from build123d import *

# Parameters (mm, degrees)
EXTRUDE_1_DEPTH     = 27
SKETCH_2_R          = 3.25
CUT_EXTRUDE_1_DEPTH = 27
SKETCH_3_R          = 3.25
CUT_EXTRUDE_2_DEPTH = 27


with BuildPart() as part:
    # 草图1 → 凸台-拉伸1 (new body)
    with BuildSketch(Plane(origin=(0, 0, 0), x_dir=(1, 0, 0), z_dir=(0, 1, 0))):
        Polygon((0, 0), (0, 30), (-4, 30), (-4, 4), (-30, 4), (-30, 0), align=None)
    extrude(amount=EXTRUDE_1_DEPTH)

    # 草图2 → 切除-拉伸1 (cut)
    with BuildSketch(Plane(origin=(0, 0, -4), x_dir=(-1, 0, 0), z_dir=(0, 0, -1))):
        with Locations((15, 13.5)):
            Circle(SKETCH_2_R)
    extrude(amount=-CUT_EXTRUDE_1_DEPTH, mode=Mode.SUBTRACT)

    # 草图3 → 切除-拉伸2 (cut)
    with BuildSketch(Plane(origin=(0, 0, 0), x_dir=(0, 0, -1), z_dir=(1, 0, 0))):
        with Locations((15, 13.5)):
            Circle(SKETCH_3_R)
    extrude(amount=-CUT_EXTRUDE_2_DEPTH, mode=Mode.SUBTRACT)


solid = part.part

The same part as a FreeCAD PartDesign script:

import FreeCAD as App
import Part
import Sketcher
from FreeCAD import Vector

doc = App.newDocument("Part")
body = doc.addObject("PartDesign::Body", "Body")

# Sketch on XZ plane
sketch1 = body.newObject("Sketcher::SketchObject", "Sketch")
sketch1.AttachmentSupport = (doc.getObject("XZ_Plane"), [""])
sketch1.MapMode = "FlatFace"
sketch1.addGeometry([
    Part.LineSegment(Vector(0, 0, 0), Vector(0, -30, 0)),  # 0
    Part.LineSegment(Vector(0, -30, 0), Vector(-4, -30, 0)),  # 1
    Part.LineSegment(Vector(-4, -30, 0), Vector(-4, -4, 0)),  # 2
    Part.LineSegment(Vector(-4, -4, 0), Vector(-30, -4, 0)),  # 3
    Part.LineSegment(Vector(-30, -4, 0), Vector(-30, 0, 0)),  # 4
    Part.LineSegment(Vector(-30, 0, 0), Vector(0, 0, 0)),  # 5
], False)
sketch1.addConstraint([
    Sketcher.Constraint("Coincident", 0, 2, 1, 1),
    Sketcher.Constraint("Coincident", 1, 2, 2, 1),
    Sketcher.Constraint("Coincident", 2, 2, 3, 1),
    Sketcher.Constraint("Coincident", 3, 2, 4, 1),
    Sketcher.Constraint("Coincident", 4, 2, 5, 1),
    Sketcher.Constraint("Coincident", 5, 2, 0, 1),
    Sketcher.Constraint("Vertical", 0),
    Sketcher.Constraint("Horizontal", 1),
    Sketcher.Constraint("Vertical", 2),
    Sketcher.Constraint("Horizontal", 3),
    Sketcher.Constraint("Vertical", 4),
    Sketcher.Constraint("Horizontal", 5),
    Sketcher.Constraint("Coincident", 5, 2, -1, 1),
    Sketcher.Constraint("Equal", 5, 0),
    Sketcher.Constraint("Equal", 3, 2),
    Sketcher.Constraint("DistanceX", 1, 2, 1, 1, 4.0),
    Sketcher.Constraint("DistanceX", 3, 2, 3, 1, 26.0),
])
pad1 = body.newObject("PartDesign::Pad", "Pad")
pad1.Profile = sketch1
pad1.Length = 27
pad1.Reversed = True

# Sketch on XY plane
sketch2 = body.newObject("Sketcher::SketchObject", "Sketch001")
sketch2.AttachmentSupport = (doc.getObject("XY_Plane"), [""])
sketch2.MapMode = "FlatFace"
sketch2.AttachmentOffset = App.Placement(Vector(0, 0, -4), App.Rotation())
sketch2.addGeometry(Part.Circle(Vector(-15, 13.5, 0), Vector(0, 0, 1), 3.2), False)
sketch2.addConstraint([
    Sketcher.Constraint("Diameter", 0, 6.5),
    Sketcher.Constraint("DistanceX", 0, 3, -1, 1, 15.0),
    Sketcher.Constraint("DistanceY", -1, 1, 0, 3, 13.5),
])
pocket1 = body.newObject("PartDesign::Pocket", "Pocket")
pocket1.Profile = sketch2
pocket1.Length = 27
pocket1.Reversed = True

# Sketch on YZ plane
sketch3 = body.newObject("Sketcher::SketchObject", "Sketch002")
sketch3.AttachmentSupport = (doc.getObject("YZ_Plane"), [""])
sketch3.MapMode = "FlatFace"
sketch3.addGeometry(Part.Circle(Vector(13.5, -15, 0), Vector(0, 0, 1), 3.2), False)
sketch3.addConstraint([
    Sketcher.Constraint("Diameter", 0, 6.5),
    Sketcher.Constraint("DistanceY", 0, 3, -1, 1, 15.0),
    Sketcher.Constraint("DistanceX", -1, 1, 0, 3, 13.5),
])
pocket2 = body.newObject("PartDesign::Pocket", "Pocket001")
pocket2.Profile = sketch3
pocket2.Length = 27

doc.recompute()
